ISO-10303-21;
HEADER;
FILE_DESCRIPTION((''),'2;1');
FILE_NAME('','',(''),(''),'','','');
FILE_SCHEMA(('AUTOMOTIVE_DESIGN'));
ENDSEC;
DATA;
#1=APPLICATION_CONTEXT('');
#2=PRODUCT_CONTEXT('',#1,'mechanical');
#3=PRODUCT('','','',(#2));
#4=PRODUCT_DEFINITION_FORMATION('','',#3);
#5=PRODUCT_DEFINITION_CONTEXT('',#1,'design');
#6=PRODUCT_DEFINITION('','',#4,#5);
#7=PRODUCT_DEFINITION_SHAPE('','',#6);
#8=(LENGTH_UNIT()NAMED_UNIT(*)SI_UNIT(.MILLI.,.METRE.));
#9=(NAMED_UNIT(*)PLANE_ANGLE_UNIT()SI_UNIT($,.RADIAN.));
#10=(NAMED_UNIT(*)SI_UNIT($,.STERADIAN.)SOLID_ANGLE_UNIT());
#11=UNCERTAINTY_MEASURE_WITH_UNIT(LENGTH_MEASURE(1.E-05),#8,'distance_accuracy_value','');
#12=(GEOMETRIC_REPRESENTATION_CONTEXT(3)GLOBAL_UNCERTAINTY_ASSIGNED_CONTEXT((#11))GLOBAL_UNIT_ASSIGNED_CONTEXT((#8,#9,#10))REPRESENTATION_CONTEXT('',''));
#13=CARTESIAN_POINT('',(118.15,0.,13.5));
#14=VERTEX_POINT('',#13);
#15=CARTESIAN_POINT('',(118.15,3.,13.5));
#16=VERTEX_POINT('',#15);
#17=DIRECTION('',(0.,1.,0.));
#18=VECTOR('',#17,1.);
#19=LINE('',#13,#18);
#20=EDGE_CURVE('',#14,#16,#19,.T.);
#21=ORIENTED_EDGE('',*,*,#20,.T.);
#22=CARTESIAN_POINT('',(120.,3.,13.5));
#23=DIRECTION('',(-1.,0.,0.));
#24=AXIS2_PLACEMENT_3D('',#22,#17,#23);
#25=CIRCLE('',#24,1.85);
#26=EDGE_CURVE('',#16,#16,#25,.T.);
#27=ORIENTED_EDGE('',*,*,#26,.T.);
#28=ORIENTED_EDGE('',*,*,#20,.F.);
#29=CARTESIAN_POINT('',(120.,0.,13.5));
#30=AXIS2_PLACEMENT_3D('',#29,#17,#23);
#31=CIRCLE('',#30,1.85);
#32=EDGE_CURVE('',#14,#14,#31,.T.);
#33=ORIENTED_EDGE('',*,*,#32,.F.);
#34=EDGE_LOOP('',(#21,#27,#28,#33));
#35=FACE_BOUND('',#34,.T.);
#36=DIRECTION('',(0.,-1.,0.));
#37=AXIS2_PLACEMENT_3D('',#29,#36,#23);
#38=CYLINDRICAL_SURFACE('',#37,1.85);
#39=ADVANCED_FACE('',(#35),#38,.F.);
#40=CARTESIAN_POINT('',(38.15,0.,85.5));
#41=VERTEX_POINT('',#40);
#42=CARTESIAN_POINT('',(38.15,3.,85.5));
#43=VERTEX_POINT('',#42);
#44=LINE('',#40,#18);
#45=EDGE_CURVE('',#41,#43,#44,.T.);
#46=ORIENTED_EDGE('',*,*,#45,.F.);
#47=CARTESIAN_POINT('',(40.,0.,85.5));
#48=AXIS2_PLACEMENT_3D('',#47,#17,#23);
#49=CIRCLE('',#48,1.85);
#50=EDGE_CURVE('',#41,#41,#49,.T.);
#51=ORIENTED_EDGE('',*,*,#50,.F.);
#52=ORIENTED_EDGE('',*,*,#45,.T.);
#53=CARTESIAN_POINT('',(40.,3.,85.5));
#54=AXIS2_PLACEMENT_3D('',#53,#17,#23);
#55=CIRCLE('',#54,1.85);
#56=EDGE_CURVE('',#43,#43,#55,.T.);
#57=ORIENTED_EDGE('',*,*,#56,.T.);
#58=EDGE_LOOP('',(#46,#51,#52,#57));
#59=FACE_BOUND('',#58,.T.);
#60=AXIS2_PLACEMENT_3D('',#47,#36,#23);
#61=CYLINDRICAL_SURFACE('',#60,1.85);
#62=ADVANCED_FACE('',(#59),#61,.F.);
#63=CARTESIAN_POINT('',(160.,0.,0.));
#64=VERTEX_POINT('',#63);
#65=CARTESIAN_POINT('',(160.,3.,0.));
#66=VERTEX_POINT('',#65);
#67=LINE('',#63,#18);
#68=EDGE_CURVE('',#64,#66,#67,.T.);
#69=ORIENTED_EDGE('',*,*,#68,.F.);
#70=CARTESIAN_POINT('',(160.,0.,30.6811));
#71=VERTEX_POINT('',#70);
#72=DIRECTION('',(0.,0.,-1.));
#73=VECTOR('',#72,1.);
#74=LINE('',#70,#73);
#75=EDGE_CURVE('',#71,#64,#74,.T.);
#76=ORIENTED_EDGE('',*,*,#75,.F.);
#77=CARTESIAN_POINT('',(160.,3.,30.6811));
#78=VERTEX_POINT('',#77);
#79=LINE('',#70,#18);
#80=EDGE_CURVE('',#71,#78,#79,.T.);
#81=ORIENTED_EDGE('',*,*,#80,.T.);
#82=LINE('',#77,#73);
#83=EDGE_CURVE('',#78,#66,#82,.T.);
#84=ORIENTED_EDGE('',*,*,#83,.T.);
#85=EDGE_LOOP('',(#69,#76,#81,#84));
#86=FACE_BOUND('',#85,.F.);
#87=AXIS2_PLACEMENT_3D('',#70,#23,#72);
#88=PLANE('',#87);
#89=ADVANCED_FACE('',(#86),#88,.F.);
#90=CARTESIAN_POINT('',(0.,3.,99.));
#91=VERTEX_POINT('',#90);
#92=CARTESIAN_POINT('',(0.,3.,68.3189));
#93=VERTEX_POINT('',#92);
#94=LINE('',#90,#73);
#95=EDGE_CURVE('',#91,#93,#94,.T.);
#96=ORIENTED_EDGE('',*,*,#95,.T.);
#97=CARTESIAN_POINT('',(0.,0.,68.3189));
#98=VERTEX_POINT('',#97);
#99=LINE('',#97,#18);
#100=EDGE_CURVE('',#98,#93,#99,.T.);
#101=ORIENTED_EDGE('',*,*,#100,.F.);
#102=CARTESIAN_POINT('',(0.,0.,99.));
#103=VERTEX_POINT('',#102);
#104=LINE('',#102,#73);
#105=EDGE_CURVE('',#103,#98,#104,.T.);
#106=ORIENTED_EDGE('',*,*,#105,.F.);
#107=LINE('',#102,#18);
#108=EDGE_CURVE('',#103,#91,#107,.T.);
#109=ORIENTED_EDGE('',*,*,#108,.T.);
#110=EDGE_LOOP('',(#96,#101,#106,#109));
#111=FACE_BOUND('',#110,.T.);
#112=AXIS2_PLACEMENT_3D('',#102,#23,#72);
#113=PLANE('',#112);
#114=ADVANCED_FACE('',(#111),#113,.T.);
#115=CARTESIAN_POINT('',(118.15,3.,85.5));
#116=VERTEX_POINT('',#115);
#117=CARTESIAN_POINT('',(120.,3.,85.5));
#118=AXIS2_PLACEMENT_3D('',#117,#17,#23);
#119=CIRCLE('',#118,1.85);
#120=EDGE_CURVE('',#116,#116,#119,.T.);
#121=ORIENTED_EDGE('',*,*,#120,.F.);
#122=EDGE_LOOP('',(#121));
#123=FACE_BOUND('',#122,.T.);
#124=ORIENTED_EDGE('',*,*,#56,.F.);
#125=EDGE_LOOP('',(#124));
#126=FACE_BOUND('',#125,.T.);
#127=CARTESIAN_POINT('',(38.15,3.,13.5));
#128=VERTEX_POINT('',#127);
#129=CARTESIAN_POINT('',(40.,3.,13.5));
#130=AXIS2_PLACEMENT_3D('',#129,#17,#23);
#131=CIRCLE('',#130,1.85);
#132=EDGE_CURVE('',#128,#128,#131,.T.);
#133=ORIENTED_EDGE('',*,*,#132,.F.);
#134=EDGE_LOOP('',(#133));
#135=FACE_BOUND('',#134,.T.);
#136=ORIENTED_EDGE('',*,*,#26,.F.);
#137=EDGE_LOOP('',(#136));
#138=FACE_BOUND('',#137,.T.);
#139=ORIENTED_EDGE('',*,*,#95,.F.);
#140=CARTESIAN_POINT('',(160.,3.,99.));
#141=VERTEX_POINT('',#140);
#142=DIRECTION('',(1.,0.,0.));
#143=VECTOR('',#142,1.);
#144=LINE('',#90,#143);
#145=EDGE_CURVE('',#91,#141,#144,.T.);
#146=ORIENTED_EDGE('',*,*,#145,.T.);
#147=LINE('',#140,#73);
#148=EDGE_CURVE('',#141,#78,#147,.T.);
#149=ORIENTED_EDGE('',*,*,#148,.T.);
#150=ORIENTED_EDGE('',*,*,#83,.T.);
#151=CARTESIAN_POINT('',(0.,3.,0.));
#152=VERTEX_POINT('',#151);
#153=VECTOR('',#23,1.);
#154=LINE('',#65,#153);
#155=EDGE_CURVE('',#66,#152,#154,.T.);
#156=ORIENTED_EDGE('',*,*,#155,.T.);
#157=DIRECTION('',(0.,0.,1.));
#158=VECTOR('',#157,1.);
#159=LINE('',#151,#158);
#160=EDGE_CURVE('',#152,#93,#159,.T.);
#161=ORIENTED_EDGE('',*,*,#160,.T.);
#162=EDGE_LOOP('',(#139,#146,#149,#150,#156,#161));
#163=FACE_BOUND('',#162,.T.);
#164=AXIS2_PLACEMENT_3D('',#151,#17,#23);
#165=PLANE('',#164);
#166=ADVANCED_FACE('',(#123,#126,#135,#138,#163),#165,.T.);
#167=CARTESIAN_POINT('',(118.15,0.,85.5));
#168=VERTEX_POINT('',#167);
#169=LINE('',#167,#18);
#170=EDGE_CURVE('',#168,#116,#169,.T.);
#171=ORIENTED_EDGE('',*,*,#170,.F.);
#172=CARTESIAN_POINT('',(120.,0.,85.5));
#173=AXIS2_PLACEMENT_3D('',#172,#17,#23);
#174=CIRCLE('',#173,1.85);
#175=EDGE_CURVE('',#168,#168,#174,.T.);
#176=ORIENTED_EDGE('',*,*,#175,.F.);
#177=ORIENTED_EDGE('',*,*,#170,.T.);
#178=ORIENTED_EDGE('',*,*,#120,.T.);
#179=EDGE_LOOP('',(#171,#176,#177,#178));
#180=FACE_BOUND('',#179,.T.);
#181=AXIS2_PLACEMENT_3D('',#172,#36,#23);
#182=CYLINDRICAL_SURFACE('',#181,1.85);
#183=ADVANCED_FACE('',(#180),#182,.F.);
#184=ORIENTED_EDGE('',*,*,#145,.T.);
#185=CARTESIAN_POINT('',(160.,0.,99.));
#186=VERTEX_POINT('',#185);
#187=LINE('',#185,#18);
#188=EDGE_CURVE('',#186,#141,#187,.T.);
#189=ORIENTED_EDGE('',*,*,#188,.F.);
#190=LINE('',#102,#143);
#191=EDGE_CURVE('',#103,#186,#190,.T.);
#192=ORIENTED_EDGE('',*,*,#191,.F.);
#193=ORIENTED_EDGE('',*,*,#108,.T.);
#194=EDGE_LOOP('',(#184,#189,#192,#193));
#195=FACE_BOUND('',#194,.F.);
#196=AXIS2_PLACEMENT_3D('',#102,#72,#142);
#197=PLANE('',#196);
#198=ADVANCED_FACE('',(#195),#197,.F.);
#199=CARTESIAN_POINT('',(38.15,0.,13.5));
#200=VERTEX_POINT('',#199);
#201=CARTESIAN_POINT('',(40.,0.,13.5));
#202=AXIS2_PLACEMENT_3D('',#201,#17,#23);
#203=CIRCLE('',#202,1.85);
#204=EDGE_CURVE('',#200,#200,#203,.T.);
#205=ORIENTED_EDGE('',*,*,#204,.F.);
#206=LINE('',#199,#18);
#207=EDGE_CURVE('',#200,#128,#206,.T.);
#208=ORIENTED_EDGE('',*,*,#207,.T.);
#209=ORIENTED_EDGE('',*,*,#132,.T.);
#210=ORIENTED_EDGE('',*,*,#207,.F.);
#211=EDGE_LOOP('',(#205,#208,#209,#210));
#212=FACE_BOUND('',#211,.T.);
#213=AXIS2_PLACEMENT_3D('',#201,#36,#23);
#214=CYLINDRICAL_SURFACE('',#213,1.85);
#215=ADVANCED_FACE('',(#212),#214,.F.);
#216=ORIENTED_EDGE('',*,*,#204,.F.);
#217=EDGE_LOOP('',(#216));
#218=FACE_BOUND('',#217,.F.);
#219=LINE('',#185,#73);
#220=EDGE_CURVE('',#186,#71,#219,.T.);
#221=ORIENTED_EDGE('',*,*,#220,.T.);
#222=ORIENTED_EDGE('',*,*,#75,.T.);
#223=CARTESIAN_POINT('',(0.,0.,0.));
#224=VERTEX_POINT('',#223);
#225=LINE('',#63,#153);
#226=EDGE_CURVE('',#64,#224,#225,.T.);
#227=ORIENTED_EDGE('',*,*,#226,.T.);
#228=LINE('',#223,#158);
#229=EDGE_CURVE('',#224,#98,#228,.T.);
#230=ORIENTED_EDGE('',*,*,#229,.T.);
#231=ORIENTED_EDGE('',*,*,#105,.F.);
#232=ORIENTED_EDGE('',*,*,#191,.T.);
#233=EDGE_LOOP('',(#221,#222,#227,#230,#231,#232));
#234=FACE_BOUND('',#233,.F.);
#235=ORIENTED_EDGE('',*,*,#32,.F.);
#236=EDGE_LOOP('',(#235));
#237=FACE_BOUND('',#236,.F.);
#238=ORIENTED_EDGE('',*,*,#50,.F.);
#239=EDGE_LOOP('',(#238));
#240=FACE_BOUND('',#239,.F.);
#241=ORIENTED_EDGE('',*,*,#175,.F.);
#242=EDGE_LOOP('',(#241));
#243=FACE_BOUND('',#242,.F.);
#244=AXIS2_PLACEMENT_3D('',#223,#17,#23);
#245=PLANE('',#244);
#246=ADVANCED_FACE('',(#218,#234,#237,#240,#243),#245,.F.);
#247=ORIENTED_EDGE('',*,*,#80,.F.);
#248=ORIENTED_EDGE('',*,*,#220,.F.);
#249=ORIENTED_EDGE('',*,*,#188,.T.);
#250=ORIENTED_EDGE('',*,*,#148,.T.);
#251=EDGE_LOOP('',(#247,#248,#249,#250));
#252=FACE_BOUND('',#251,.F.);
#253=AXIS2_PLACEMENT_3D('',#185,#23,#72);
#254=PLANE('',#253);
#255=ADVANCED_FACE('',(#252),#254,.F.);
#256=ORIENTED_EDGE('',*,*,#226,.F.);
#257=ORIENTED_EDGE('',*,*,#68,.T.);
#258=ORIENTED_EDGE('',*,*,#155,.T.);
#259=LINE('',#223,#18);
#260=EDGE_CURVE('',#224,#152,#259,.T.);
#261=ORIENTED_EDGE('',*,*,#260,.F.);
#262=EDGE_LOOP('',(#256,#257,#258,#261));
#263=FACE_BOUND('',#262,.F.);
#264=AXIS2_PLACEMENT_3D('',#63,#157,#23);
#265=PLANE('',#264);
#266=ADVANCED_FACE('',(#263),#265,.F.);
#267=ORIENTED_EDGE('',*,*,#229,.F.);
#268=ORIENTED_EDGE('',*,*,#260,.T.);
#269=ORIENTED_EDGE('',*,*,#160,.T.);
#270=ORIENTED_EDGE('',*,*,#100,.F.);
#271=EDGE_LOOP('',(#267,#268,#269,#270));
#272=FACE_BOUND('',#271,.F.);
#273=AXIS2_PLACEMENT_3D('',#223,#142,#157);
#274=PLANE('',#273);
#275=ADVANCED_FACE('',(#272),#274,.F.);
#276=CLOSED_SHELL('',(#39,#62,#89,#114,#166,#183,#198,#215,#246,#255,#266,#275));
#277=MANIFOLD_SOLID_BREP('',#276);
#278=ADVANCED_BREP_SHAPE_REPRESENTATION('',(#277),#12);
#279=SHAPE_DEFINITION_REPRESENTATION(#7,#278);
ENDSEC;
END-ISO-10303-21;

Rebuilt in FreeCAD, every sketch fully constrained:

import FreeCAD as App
import Part
import Sketcher

V = App.Vector


def add_polygon(sketch, points):
    """Adds a closed chain of lines whose ends are joined by coincident constraints."""
    first, n = sketch.GeometryCount, len(points)
    for a, b in zip(points, points[1:] + points[:1]):
        sketch.addGeometry(Part.LineSegment(App.Vector(*a, 0), App.Vector(*b, 0)), False)
    for i in range(n):
        sketch.addConstraint(Sketcher.Constraint("Coincident", first + i, 2, first + (i + 1) % n, 1))

doc = App.newDocument("Part")
params = doc.addObject("Spreadsheet::Sheet", "Params")
for row, (alias, value) in enumerate([
    ("sketch1_diameter", "3.7 mm"),
    ("sketch1_width", "160 mm"),
    ("sketch1_height", "99 mm"),
    ("pad1_length", "3 mm"),
], start=1):
    params.set(f"A{row}", alias)
    params.set(f"B{row}", "=" + value)
    params.setAlias(f"B{row}", alias)

body = doc.addObject("PartDesign::Body", "Body")

# Sketch on XZ plane
sketch1 = body.newObject("Sketcher::SketchObject", "Sketch")
sketch1.AttachmentSupport = (doc.getObject("XZ_Plane"), [""])
sketch1.MapMode = "FlatFace"
add_polygon(sketch1, [(0, 0), (0, 99), (160, 99), (160, 0)])  # lines 0-3
sketch1.addGeometry(Part.Circle(V(120, 13.5, 0), V(0, 0, 1), 1.85), False)  # 4
sketch1.addGeometry(Part.Circle(V(40, 13.5, 0), V(0, 0, 1), 1.85), False)  # 5
sketch1.addGeometry(Part.Circle(V(120, 85.5, 0), V(0, 0, 1), 1.85), False)  # 6
sketch1.addGeometry(Part.Circle(V(40, 85.5, 0), V(0, 0, 1), 1.85), False)  # 7
sketch1.addConstraint(Sketcher.Constraint("Vertical", 0))
sketch1.addConstraint(Sketcher.Constraint("Horizontal", 1))
sketch1.addConstraint(Sketcher.Constraint("Vertical", 2))
sketch1.addConstraint(Sketcher.Constraint("Horizontal", 3))
sketch1.addConstraint(Sketcher.Constraint("Coincident", 3, 2, -1, 1))
sketch1.addConstraint(Sketcher.Constraint("Equal", 4, 5))
sketch1.addConstraint(Sketcher.Constraint("Equal", 5, 6))
sketch1.addConstraint(Sketcher.Constraint("Equal", 6, 7))
sketch1.addConstraint(Sketcher.Constraint("Horizontal", 4, 3, 5, 3))
sketch1.addConstraint(Sketcher.Constraint("Horizontal", 6, 3, 7, 3))
sketch1.addConstraint(Sketcher.Constraint("Vertical", 4, 3, 6, 3))
sketch1.addConstraint(Sketcher.Constraint("Vertical", 5, 3, 7, 3))
sketch1.addConstraint(Sketcher.Constraint("Diameter", 4, 3.7))
sketch1.addConstraint(Sketcher.Constraint("DistanceX", 1, 1, 1, 2, 160.0))
sketch1.addConstraint(Sketcher.Constraint("DistanceY", 0, 1, 0, 2, 99.0))
sketch1.addConstraint(Sketcher.Constraint("DistanceX", -1, 1, 4, 3, 120.0))
sketch1.addConstraint(Sketcher.Constraint("DistanceX", -1, 1, 5, 3, 40.0))
sketch1.addConstraint(Sketcher.Constraint("DistanceY", 4, 3, 6, 3, 72.0))
sketch1.addConstraint(Sketcher.Constraint("DistanceY", -1, 1, 4, 3, 13.5))
sketch1.setExpression("Constraints[16]", "Params.sketch1_diameter")
sketch1.setExpression("Constraints[17]", "Params.sketch1_width")
sketch1.setExpression("Constraints[18]", "Params.sketch1_height")
pad1 = body.newObject("PartDesign::Pad", "Pad")
pad1.Profile = sketch1
pad1.setExpression("Length", "Params.pad1_length")
pad1.Reversed = True

doc.recompute()
